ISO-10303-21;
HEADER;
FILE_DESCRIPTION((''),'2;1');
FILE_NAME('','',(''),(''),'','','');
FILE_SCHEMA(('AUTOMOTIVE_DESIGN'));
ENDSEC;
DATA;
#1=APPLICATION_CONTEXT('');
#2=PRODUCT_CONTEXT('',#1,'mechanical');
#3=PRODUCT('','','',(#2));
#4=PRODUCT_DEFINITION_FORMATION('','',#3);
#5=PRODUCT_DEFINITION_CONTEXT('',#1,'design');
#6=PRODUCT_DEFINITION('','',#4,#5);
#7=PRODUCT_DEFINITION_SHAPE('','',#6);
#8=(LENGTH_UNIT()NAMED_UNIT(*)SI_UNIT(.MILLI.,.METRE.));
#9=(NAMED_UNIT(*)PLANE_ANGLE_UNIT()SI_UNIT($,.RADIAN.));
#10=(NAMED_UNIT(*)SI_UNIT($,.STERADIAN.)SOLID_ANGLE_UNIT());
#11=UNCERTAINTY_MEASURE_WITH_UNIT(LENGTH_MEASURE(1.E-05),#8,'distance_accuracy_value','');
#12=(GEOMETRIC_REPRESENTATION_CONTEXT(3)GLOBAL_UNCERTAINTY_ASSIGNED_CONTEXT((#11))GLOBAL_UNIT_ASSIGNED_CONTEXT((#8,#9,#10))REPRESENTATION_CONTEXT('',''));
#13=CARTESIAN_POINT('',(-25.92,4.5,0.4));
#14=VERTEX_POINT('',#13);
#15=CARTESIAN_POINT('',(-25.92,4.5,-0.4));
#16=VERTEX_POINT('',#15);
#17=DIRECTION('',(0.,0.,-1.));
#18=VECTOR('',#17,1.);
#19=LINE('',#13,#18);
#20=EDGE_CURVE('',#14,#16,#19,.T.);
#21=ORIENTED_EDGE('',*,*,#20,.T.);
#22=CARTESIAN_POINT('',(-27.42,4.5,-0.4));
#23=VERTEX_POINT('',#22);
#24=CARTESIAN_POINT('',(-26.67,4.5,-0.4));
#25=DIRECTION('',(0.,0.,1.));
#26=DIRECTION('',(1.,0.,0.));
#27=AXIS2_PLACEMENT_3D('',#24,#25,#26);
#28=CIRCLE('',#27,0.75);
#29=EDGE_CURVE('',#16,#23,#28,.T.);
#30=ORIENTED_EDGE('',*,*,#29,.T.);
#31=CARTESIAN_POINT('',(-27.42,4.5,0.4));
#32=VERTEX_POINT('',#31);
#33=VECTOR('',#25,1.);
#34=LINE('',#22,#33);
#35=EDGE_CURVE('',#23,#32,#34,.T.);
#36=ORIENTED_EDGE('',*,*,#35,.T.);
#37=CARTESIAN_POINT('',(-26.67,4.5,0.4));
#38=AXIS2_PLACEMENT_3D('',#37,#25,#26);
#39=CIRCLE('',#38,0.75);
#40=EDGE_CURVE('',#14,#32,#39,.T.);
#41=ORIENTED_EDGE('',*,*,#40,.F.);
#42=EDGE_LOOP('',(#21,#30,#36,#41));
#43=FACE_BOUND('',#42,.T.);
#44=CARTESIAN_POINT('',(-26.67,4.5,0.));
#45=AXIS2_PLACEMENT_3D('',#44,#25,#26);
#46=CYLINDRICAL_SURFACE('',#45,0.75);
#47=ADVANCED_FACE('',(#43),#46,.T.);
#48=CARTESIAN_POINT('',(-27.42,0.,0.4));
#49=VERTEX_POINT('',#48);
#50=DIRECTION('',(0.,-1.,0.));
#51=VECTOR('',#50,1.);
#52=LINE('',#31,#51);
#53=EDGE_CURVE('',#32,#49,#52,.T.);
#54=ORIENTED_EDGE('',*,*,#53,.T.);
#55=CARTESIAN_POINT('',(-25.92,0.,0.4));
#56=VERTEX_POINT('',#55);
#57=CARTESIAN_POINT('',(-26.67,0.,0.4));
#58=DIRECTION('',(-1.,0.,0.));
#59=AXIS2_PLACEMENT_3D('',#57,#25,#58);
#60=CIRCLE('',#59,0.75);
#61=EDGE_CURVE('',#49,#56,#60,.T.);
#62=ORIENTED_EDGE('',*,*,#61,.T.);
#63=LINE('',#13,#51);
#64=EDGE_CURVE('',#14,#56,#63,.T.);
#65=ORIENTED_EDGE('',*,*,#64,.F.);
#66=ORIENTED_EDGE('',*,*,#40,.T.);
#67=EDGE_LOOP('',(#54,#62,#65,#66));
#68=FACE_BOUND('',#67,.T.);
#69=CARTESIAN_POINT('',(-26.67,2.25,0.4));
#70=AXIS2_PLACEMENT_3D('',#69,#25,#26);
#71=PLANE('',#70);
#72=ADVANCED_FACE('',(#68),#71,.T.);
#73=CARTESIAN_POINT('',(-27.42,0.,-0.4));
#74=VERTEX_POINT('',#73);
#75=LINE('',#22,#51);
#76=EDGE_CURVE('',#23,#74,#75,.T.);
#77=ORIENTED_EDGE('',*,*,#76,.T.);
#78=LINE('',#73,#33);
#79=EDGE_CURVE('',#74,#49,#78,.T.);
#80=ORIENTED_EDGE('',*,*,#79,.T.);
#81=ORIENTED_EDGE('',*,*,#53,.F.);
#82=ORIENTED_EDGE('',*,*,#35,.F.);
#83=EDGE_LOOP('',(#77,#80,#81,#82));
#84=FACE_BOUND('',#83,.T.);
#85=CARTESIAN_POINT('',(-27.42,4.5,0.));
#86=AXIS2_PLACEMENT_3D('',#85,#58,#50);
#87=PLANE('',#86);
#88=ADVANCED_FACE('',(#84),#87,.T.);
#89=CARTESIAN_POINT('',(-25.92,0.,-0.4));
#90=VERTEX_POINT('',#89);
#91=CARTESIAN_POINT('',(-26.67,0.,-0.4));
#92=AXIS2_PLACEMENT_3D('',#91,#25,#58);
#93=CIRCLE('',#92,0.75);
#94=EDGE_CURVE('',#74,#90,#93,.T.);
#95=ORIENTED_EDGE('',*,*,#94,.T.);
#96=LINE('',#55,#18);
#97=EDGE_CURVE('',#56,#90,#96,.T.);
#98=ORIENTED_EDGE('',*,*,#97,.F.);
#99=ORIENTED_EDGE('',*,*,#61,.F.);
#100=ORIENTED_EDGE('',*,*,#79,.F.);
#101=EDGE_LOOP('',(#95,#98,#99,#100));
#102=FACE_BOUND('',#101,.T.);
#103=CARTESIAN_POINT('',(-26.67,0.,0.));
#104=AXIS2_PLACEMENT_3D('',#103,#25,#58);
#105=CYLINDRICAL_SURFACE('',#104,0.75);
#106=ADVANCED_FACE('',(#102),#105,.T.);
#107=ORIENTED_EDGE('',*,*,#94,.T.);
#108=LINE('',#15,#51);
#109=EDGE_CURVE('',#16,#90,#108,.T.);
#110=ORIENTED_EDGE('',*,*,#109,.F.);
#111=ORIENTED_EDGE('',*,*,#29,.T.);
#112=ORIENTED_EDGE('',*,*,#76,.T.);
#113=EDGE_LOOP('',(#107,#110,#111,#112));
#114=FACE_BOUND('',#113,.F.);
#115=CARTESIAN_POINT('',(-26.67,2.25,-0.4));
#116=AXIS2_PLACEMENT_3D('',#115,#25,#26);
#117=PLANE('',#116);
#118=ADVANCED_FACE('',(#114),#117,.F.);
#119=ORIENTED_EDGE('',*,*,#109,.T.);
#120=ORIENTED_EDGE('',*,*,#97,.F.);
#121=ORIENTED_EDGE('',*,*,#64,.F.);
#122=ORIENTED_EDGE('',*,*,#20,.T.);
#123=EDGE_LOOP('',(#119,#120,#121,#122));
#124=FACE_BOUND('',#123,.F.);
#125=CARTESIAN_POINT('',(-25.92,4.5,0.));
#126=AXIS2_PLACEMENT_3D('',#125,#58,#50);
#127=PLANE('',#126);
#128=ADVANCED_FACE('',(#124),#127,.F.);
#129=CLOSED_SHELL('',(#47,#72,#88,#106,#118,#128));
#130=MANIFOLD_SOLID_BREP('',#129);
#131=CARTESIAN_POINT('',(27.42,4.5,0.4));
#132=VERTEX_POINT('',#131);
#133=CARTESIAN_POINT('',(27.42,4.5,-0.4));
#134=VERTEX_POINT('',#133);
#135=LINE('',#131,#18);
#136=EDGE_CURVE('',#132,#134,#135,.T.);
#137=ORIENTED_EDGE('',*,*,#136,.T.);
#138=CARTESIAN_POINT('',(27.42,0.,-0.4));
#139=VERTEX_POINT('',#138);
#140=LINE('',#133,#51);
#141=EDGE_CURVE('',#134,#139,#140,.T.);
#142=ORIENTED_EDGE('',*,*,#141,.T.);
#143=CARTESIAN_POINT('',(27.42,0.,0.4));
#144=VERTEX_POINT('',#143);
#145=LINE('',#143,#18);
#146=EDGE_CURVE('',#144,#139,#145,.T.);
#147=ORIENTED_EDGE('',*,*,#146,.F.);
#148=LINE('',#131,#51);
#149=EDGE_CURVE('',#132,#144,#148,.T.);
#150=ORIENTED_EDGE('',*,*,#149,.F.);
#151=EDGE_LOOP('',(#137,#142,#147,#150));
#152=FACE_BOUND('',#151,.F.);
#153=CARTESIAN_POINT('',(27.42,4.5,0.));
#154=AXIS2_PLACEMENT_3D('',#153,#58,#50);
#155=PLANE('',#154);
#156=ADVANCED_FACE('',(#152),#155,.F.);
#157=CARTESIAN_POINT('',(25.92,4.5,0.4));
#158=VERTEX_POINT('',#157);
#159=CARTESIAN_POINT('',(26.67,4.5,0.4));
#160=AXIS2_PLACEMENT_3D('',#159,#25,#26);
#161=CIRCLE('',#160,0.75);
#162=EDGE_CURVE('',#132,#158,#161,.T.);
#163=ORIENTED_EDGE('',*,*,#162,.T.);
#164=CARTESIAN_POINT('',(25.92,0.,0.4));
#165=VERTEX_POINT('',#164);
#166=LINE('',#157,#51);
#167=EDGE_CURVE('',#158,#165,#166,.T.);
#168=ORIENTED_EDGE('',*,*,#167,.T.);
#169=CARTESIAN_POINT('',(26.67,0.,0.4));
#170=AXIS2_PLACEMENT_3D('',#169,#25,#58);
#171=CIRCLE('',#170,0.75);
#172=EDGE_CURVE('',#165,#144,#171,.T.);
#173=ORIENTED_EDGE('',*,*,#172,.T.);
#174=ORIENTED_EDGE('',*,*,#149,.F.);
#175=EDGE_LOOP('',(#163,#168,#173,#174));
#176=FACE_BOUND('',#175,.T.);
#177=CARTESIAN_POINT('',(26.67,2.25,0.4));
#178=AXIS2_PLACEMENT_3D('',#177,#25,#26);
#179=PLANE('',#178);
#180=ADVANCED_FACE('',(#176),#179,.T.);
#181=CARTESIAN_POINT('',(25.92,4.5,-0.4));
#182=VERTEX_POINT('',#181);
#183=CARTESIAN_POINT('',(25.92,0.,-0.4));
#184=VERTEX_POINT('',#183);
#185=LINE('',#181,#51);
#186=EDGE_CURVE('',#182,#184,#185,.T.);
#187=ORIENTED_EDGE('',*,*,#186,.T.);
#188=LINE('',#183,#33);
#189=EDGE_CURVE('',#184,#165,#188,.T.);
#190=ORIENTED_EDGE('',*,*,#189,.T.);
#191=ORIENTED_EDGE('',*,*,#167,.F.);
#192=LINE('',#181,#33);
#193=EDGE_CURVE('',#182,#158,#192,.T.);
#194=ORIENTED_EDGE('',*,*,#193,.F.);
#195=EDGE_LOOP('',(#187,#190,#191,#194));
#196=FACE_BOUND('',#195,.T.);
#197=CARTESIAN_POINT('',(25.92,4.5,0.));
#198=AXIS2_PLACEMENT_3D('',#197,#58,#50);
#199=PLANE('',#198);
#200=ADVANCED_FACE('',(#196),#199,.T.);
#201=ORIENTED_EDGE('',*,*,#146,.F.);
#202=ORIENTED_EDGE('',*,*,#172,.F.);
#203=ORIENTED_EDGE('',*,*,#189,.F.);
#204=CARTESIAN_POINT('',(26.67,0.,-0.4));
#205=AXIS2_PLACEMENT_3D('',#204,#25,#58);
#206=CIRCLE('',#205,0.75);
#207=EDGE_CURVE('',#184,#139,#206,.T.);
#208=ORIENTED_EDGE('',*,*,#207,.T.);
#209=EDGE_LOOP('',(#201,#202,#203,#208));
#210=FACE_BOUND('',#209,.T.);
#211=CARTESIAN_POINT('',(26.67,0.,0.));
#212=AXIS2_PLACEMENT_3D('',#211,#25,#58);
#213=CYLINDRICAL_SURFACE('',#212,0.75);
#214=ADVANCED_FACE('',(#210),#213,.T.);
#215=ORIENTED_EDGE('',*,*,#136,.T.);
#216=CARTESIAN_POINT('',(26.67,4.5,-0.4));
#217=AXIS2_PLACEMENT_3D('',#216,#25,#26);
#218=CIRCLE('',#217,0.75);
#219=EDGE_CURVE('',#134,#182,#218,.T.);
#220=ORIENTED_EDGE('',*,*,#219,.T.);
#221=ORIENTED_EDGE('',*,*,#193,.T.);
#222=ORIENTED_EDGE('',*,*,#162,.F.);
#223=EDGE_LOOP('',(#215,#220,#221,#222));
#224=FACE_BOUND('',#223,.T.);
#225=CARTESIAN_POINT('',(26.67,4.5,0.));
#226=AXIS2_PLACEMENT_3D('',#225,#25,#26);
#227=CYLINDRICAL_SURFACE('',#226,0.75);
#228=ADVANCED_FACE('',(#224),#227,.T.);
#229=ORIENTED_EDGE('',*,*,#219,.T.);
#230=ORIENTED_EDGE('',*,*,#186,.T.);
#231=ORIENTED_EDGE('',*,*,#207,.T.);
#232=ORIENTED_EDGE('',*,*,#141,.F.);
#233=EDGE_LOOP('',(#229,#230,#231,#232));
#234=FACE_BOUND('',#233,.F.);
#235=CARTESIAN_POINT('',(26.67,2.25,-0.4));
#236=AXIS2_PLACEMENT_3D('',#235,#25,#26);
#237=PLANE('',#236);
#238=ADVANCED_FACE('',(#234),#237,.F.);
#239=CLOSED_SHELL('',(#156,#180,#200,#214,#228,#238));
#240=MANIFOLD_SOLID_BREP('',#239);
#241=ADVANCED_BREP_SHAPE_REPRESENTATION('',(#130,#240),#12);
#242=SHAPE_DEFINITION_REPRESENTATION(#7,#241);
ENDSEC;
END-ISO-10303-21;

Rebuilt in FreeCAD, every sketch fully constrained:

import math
import FreeCAD as App
import Part
import Sketcher
from FreeCAD import Vector
Q = App.Units.Quantity

doc = App.newDocument("Part")
body = doc.addObject("PartDesign::Body", "Body")

sketch1 = doc.addObject("Sketcher::SketchObject", "Sketch")
body.addObject(sketch1)
sketch1.AttachmentSupport = (doc.XY_Plane, [""])
sketch1.MapMode = "FlatFace"
sketch1.addGeometry([
    Part.ArcOfCircle(Part.Circle(Vector(-26.67, 4.5, 0), Vector(0, 0, 1), 0.75), math.radians(0), math.radians(180)),
    Part.LineSegment(Vector(-27.42, 4.5, 0), Vector(-27.42, 0, 0)),
    Part.ArcOfCircle(Part.Circle(Vector(-26.67, 0, 0), Vector(0, 0, 1), 0.75), math.radians(180), math.radians(360)),
    Part.LineSegment(Vector(-25.92, 0, 0), Vector(-25.92, 4.5, 0)),
], False)
sketch1.addConstraint([
    Sketcher.Constraint("Tangent", 0, 2, 1, 1),
    Sketcher.Constraint("Tangent", 1, 2, 2, 1),
    Sketcher.Constraint("Tangent", 2, 2, 3, 1),
    Sketcher.Constraint("Tangent", 3, 2, 0, 1),
    Sketcher.Constraint("Vertical", 1),
    Sketcher.Constraint("Vertical", 3),
    Sketcher.Constraint("PointOnObject", 2, 3, -1),
    Sketcher.Constraint("Radius", 0, Q("0.75 mm")),
    Sketcher.Constraint("DistanceY", 1, 2, 1, 1, Q("4.5 mm")),
    Sketcher.Constraint("DistanceX", 0, 3, -1, 1, Q("26.67 mm")),
])
pad1 = doc.addObject("PartDesign::Pad", "Pad")
body.addObject(pad1)
pad1.Profile = sketch1
pad1.Length = 0.8
pad1.Midplane = True
body2 = doc.addObject("PartDesign::Body", "Body001")

sketch2 = doc.addObject("Sketcher::SketchObject", "Sketch001")
body2.addObject(sketch2)
sketch2.AttachmentSupport = (doc.getObject("XY_Plane001"), [""])
sketch2.MapMode = "FlatFace"
sketch2.addGeometry([
    Part.ArcOfCircle(Part.Circle(Vector(26.67, 4.5, 0), Vector(0, 0, 1), 0.75), math.radians(0), math.radians(180)),
    Part.LineSegment(Vector(25.92, 4.5, 0), Vector(25.92, 0, 0)),
    Part.ArcOfCircle(Part.Circle(Vector(26.67, 0, 0), Vector(0, 0, 1), 0.75), math.radians(180), math.radians(360)),
    Part.LineSegment(Vector(27.42, 0, 0), Vector(27.42, 4.5, 0)),
], False)
sketch2.addConstraint([
    Sketcher.Constraint("Tangent", 0, 2, 1, 1),
    Sketcher.Constraint("Tangent", 1, 2, 2, 1),
    Sketcher.Constraint("Tangent", 2, 2, 3, 1),
    Sketcher.Constraint("Tangent", 3, 2, 0, 1),
    Sketcher.Constraint("Vertical", 1),
    Sketcher.Constraint("Vertical", 3),
    Sketcher.Constraint("PointOnObject", 2, 3, -1),
    Sketcher.Constraint("Radius", 0, Q("0.75 mm")),
    Sketcher.Constraint("DistanceY", 1, 2, 1, 1, Q("4.5 mm")),
    Sketcher.Constraint("DistanceX", -1, 1, 0, 3, Q("26.67 mm")),
])
pad2 = doc.addObject("PartDesign::Pad", "Pad001")
body2.addObject(pad2)
pad2.Profile = sketch2
pad2.Length = 0.8
pad2.Midplane = True

doc.recompute()
